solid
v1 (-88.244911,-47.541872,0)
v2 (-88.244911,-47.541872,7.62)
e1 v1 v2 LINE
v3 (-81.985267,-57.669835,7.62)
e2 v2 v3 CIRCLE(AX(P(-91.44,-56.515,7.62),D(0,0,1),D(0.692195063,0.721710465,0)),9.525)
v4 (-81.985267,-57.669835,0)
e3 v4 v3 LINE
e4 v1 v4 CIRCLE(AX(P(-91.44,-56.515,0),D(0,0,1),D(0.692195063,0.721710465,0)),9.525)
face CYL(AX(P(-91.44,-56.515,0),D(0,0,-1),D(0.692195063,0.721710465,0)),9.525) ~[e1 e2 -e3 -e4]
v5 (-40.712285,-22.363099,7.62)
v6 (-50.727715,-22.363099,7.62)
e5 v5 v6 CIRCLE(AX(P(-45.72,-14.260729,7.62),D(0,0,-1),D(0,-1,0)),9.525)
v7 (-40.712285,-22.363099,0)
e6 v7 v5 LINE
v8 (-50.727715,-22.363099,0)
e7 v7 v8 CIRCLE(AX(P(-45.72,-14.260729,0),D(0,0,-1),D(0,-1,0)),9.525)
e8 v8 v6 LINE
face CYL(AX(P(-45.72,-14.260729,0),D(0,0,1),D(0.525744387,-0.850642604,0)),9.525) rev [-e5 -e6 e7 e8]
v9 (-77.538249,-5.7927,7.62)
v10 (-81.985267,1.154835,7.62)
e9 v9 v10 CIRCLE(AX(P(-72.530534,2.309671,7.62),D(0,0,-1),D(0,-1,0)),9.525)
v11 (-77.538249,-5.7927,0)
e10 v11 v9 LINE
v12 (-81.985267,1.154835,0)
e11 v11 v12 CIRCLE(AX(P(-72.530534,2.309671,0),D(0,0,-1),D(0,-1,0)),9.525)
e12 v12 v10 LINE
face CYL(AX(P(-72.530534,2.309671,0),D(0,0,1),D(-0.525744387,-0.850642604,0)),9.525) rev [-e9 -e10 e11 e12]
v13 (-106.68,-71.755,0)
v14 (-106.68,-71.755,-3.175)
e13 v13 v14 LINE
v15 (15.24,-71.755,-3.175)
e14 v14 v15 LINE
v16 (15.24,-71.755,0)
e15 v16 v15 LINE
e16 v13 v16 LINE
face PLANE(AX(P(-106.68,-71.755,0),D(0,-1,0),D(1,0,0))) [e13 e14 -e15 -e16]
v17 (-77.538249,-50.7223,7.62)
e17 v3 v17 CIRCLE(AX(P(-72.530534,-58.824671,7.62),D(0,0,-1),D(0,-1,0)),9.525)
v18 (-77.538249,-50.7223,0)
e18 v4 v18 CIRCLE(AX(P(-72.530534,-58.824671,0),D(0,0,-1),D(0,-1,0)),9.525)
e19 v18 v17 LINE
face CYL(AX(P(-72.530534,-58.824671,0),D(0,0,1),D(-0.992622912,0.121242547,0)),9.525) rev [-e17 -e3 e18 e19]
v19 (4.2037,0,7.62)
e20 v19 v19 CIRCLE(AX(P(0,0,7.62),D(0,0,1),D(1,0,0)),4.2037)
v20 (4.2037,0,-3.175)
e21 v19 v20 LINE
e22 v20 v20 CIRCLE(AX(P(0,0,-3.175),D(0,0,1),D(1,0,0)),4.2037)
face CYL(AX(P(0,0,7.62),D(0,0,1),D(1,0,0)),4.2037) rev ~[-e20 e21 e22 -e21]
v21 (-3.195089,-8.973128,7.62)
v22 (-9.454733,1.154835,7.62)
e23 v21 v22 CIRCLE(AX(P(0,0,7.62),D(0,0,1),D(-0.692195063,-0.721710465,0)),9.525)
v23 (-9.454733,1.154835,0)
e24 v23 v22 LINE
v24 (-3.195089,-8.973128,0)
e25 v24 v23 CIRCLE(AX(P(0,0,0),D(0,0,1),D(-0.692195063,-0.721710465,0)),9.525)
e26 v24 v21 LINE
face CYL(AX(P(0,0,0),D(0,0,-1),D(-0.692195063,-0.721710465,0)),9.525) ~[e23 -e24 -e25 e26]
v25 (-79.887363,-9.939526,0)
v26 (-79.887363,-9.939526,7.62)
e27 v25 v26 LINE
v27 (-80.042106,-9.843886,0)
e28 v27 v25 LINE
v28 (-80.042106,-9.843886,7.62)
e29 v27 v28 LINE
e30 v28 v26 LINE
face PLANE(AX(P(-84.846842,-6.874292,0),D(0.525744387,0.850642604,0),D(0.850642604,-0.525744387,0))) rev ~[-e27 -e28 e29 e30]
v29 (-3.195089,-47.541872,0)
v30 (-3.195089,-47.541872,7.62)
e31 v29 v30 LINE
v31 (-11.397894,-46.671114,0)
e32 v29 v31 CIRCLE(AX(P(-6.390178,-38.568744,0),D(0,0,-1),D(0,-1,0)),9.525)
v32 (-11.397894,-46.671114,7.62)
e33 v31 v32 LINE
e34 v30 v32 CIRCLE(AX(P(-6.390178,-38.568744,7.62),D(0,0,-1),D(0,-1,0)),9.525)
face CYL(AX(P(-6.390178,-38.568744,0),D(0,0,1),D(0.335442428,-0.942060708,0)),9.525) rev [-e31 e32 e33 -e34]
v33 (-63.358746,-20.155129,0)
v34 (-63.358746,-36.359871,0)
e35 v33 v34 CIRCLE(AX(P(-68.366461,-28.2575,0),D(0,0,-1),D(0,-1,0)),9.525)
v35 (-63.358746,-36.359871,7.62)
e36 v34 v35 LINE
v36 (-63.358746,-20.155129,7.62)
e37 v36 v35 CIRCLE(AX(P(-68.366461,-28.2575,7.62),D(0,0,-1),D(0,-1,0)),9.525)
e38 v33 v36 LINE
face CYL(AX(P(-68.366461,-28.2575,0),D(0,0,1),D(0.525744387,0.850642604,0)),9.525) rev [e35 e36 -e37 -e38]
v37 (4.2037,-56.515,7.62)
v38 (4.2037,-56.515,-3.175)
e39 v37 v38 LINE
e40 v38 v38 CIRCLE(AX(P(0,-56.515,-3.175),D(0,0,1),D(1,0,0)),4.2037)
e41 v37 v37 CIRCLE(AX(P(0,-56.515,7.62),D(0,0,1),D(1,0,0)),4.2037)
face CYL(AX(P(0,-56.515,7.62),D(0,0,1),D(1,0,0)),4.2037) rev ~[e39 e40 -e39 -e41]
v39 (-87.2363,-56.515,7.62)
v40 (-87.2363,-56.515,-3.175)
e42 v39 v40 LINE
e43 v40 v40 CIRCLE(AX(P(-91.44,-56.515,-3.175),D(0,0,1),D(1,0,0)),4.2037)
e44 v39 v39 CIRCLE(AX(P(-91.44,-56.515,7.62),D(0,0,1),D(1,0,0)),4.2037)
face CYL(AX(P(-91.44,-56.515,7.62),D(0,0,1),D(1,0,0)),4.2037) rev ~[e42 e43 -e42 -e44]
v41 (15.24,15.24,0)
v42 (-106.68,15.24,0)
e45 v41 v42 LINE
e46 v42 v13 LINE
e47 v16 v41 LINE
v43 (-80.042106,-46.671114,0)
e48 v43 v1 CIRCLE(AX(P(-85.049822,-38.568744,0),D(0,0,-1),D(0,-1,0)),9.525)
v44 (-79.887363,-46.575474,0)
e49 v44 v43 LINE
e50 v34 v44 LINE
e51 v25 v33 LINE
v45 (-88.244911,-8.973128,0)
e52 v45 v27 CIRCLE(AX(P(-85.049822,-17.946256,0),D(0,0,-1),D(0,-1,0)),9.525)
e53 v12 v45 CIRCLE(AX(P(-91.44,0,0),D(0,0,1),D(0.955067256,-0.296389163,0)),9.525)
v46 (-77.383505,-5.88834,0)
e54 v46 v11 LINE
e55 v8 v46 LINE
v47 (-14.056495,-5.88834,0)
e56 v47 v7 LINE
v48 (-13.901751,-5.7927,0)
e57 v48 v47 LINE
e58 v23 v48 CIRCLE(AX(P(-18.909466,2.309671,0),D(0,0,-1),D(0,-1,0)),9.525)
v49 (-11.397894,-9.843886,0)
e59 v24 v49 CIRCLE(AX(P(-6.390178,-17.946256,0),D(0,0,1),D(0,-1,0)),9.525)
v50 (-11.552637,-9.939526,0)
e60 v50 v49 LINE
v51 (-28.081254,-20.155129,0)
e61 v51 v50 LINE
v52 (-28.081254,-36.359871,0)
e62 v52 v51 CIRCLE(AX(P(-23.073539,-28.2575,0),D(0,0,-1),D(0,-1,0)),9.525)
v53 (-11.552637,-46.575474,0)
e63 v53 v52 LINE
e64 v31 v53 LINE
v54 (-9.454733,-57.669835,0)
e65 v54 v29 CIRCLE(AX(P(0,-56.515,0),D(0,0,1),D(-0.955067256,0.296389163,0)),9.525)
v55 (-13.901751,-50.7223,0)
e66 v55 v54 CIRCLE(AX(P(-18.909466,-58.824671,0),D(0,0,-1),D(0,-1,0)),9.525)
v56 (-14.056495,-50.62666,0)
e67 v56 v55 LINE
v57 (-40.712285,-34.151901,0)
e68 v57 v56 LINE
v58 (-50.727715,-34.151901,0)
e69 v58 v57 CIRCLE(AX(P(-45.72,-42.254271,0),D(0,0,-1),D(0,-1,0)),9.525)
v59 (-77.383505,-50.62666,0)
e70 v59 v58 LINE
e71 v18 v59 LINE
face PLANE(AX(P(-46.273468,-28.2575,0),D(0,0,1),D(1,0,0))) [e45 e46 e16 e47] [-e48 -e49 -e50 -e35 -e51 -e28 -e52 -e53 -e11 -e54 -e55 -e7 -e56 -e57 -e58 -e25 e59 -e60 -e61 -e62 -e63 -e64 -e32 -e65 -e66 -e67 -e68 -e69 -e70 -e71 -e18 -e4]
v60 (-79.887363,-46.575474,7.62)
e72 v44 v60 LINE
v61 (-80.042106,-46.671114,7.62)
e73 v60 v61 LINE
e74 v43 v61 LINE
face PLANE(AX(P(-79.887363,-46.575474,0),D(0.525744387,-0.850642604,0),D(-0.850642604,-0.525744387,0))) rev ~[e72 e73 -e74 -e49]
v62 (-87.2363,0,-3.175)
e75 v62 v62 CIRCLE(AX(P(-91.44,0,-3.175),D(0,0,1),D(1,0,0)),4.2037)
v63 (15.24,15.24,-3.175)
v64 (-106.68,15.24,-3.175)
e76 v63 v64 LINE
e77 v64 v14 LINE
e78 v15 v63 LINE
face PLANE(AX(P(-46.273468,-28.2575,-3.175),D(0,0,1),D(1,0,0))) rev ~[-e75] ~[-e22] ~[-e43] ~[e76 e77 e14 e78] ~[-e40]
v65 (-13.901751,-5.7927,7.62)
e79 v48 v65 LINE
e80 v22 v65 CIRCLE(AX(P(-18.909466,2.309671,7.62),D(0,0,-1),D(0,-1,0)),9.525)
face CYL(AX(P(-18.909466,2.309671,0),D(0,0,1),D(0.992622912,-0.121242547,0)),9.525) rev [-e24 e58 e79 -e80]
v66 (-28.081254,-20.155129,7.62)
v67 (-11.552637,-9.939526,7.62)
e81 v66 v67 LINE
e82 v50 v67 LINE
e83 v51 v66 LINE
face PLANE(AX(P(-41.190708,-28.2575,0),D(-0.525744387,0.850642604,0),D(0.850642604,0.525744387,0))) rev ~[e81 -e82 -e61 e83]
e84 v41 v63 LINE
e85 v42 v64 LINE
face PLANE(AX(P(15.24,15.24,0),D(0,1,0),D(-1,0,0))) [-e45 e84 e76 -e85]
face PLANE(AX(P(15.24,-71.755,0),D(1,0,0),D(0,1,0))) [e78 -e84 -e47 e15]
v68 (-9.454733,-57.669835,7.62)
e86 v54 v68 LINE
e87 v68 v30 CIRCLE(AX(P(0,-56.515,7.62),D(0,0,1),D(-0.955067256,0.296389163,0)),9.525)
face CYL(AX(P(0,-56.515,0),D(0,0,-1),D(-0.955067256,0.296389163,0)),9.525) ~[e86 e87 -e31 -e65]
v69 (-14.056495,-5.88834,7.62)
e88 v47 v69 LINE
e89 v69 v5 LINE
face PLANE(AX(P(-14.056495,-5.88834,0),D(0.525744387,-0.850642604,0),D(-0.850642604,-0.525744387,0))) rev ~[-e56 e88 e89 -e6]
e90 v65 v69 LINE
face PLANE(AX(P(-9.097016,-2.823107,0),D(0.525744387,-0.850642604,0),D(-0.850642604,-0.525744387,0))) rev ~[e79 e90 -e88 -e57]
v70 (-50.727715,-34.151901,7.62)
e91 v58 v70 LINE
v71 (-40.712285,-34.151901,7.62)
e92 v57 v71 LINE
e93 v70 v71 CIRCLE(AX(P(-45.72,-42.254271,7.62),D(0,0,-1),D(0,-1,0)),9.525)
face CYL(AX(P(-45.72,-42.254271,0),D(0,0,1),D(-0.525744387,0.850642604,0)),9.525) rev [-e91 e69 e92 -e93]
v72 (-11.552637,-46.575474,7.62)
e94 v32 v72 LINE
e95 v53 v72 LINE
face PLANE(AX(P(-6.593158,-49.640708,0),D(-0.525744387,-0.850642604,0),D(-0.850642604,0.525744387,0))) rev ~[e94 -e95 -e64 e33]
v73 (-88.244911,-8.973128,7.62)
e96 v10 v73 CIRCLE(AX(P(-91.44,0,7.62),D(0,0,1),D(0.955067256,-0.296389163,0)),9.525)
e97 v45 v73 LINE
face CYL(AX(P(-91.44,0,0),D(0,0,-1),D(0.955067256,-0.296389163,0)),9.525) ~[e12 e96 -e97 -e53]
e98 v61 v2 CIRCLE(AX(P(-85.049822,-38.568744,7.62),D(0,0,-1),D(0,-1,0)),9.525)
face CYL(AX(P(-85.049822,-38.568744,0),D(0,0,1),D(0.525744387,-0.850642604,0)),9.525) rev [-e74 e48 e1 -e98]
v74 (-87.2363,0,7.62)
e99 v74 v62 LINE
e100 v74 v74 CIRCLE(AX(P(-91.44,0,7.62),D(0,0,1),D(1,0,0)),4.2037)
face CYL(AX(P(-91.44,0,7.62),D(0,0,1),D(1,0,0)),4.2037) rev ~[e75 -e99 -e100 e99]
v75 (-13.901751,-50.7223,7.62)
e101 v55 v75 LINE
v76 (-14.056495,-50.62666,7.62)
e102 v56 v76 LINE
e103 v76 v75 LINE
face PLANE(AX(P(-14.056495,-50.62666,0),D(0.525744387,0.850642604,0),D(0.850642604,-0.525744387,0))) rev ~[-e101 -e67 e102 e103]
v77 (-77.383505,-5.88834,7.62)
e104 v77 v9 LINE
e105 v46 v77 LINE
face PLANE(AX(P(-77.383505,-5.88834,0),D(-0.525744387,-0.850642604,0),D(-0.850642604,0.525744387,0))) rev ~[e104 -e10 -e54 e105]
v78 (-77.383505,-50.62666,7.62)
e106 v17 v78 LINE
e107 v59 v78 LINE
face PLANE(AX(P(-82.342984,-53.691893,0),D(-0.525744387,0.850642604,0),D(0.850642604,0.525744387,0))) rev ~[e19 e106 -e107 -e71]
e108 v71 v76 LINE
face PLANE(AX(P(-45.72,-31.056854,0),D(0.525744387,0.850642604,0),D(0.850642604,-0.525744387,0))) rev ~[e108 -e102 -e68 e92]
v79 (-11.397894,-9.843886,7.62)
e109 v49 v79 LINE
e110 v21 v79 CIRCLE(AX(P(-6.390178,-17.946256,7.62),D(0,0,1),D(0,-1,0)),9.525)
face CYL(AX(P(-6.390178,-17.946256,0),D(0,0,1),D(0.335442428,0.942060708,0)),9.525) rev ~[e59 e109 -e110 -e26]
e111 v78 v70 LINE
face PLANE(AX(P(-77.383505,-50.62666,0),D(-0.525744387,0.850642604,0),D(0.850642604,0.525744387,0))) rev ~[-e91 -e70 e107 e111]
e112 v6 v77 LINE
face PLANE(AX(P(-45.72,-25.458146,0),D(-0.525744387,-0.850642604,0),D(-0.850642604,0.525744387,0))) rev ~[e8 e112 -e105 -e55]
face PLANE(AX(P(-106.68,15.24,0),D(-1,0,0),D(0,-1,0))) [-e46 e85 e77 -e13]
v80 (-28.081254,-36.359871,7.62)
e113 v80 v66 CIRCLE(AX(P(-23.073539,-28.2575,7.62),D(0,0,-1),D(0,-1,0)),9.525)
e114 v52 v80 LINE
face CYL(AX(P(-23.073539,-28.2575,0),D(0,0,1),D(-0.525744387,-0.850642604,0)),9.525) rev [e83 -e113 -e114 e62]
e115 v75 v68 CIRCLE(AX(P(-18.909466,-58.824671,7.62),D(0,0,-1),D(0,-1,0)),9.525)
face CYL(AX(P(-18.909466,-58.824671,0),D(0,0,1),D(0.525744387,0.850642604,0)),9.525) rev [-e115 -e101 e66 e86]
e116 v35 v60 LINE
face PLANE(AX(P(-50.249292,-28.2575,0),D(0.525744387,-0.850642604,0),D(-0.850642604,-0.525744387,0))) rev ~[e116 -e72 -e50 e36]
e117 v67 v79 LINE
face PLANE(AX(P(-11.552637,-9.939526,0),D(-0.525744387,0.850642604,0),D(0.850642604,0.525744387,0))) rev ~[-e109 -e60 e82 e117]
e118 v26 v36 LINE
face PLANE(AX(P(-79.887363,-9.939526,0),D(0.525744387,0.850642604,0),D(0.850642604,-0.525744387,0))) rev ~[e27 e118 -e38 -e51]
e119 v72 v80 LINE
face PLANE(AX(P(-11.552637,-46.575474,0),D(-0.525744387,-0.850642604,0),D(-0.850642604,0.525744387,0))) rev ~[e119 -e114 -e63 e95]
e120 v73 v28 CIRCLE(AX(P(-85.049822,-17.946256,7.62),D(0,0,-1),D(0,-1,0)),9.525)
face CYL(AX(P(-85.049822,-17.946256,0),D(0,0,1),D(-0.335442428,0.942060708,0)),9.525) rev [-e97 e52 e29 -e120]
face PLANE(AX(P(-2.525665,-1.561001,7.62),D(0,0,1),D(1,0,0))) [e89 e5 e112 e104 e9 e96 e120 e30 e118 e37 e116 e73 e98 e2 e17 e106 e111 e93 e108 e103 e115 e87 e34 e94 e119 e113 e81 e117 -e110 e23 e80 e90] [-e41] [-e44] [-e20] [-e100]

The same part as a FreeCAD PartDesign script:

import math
import FreeCAD as App
import Part
import Sketcher
from FreeCAD import Vector
Q = App.Units.Quantity


def edges_at(feature, points):
    """Names of the edges that pass closest to the given points."""
    edges = feature.Shape.Edges
    near = lambda p: min(range(len(edges)), key=lambda i: edges[i].distToShape(Part.Vertex(*p))[0])
    return sorted({f"Edge{near(p) + 1}" for p in points})


def add_polygon(sketch, points):
    """Adds a closed chain of lines whose ends are joined by coincident constraints."""
    first, n = sketch.GeometryCount, len(points)
    for a, b in zip(points, points[1:] + points[:1]):
        sketch.addGeometry(Part.LineSegment(App.Vector(*a, 0), App.Vector(*b, 0)), False)
    for i in range(n):
        sketch.addConstraint(Sketcher.Constraint("Coincident", first + i, 2, first + (i + 1) % n, 1))

doc = App.newDocument("Part")
body = doc.addObject("PartDesign::Body", "Body")

# Sketch on XY plane
sketch1 = body.newObject("Sketcher::SketchObject", "Sketch")
sketch1.AttachmentSupport = (doc.getObject("XY_Plane"), [""])
sketch1.MapMode = "FlatFace"
add_polygon(sketch1, [(-106.68, 15.24), (-106.68, -71.755), (15.24, -71.755), (15.24, 15.24)])  # lines 0-3
sketch1.addConstraint([
    Sketcher.Constraint("Vertical", 0),
    Sketcher.Constraint("Horizontal", 1),
    Sketcher.Constraint("Vertical", 2),
    Sketcher.Constraint("Horizontal", 3),
    Sketcher.Constraint("DistanceX", 1, 1, 1, 2, Q("4.8 in")),
    Sketcher.Constraint("DistanceX", 0, 2, -1, 1, Q("4.2 in")),
    Sketcher.Constraint("DistanceY", -1, 1, 2, 2, Q("0.6 in")),
    Sketcher.Constraint("DistanceY", 0, 2, 0, 1, Q("3.425 in")),
])
pad1 = body.newObject("PartDesign::Pad", "Pad")
pad1.Profile = sketch1
pad1.Length = Q("0.125 in")
pad1.Reversed = True

# Sketch on XY plane
sketch2 = body.newObject("Sketcher::SketchObject", "Sketch001")
sketch2.AttachmentSupport = (doc.getObject("XY_Plane"), [""])
sketch2.MapMode = "FlatFace"
sketch2.addGeometry([
    Part.ArcOfCircle(Part.Circle(Vector(0, 0, 0), Vector(0, 0, 1), 9.525), math.radians(-133.804119), math.radians(197.240856)),  # 0
    Part.LineSegment(Vector(-9.097016, -2.823107, 0), Vector(-14.056495, -5.88834, 0)),  # 1
    Part.LineSegment(Vector(-14.056495, -5.88834, 0), Vector(-45.72, -25.458146, 0)),  # 2
    Part.LineSegment(Vector(-45.72, -25.458146, 0), Vector(-77.383505, -5.88834, 0)),  # 3
    Part.LineSegment(Vector(-77.383505, -5.88834, 0), Vector(-82.342984, -2.823107, 0)),  # 4
    Part.ArcOfCircle(Part.Circle(Vector(-91.44, 0, 0), Vector(0, 0, 1), 9.525), math.radians(-17.240856), math.radians(313.804119)),  # 5
    Part.LineSegment(Vector(-84.846842, -6.874292, 0), Vector(-79.887363, -9.939526, 0)),  # 6
    Part.LineSegment(Vector(-79.887363, -9.939526, 0), Vector(-50.249292, -28.2575, 0)),  # 7
    Part.LineSegment(Vector(-50.249292, -28.2575, 0), Vector(-79.887363, -46.575474, 0)),  # 8
    Part.LineSegment(Vector(-79.887363, -46.575474, 0), Vector(-84.846842, -49.640708, 0)),  # 9
    Part.ArcOfCircle(Part.Circle(Vector(-91.44, -56.515, 0), Vector(0, 0, 1), 9.525), math.radians(46.195881), math.radians(377.240856)),  # 10
    Part.LineSegment(Vector(-82.342984, -53.691893, 0), Vector(-77.383505, -50.62666, 0)),  # 11
    Part.LineSegment(Vector(-77.383505, -50.62666, 0), Vector(-45.72, -31.056854, 0)),  # 12
    Part.LineSegment(Vector(-45.72, -31.056854, 0), Vector(-14.056495, -50.62666, 0)),  # 13
    Part.LineSegment(Vector(-14.056495, -50.62666, 0), Vector(-9.097016, -53.691893, 0)),  # 14
    Part.ArcOfCircle(Part.Circle(Vector(0, -56.515, 0), Vector(0, 0, 1), 9.525), math.radians(162.759144), math.radians(493.804119)),  # 15
    Part.LineSegment(Vector(-6.593158, -49.640708, 0), Vector(-11.552637, -46.575474, 0)),  # 16
    Part.LineSegment(Vector(-11.552637, -46.575474, 0), Vector(-41.190708, -28.2575, 0)),  # 17
    Part.LineSegment(Vector(-41.190708, -28.2575, 0), Vector(-11.552637, -9.939526, 0)),  # 18
    Part.LineSegment(Vector(-11.552637, -9.939526, 0), Vector(-6.593158, -6.874292, 0)),  # 19
], False)
sketch2.addConstraint([
    Sketcher.Constraint("Coincident", 0, 2, 1, 1),
    Sketcher.Constraint("Coincident", 1, 2, 2, 1),
    Sketcher.Constraint("Coincident", 2, 2, 3, 1),
    Sketcher.Constraint("Coincident", 3, 2, 4, 1),
    Sketcher.Constraint("Coincident", 4, 2, 5, 1),
    Sketcher.Constraint("Coincident", 5, 2, 6, 1),
    Sketcher.Constraint("Coincident", 6, 2, 7, 1),
    Sketcher.Constraint("Coincident", 7, 2, 8, 1),
    Sketcher.Constraint("Coincident", 8, 2, 9, 1),
    Sketcher.Constraint("Coincident", 9, 2, 10, 1),
    Sketcher.Constraint("Coincident", 10, 2, 11, 1),
    Sketcher.Constraint("Coincident", 11, 2, 12, 1),
    Sketcher.Constraint("Coincident", 12, 2, 13, 1),
    Sketcher.Constraint("Coincident", 13, 2, 14, 1),
    Sketcher.Constraint("Coincident", 14, 2, 15, 1),
    Sketcher.Constraint("Coincident", 15, 2, 16, 1),
    Sketcher.Constraint("Coincident", 16, 2, 17, 1),
    Sketcher.Constraint("Coincident", 17, 2, 18, 1),
    Sketcher.Constraint("Coincident", 18, 2, 19, 1),
    Sketcher.Constraint("Coincident", 19, 2, 0, 1),
    Sketcher.Constraint("Coincident", 0, 3, -1, 1),
    Sketcher.Constraint("Equal", 0, 5),
    Sketcher.Constraint("Equal", 5, 10),
    Sketcher.Constraint("Equal", 10, 15),
    Sketcher.Constraint("PointOnObject", 5, 3, -1),
    Sketcher.Constraint("PointOnObject", 15, 3, -2),
    Sketcher.Constraint("Parallel", 1, 2),
    Sketcher.Constraint("Parallel", 3, 4),
    Sketcher.Constraint("Parallel", 4, 6),
    Sketcher.Constraint("Parallel", 6, 7),
    Sketcher.Constraint("Parallel", 2, 8),
    Sketcher.Constraint("Parallel", 8, 9),
    Sketcher.Constraint("Parallel", 9, 11),
    Sketcher.Constraint("Parallel", 11, 12),
    Sketcher.Constraint("Parallel", 7, 13),
    Sketcher.Constraint("Parallel", 13, 14),
    Sketcher.Constraint("Parallel", 14, 16),
    Sketcher.Constraint("Parallel", 16, 17),
    Sketcher.Constraint("Parallel", 12, 18),
    Sketcher.Constraint("Parallel", 18, 19),
    Sketcher.Constraint("Horizontal", 10, 3, 15, 3),
    Sketcher.Constraint("Horizontal", 1, 2, 3, 2),
    Sketcher.Constraint("Horizontal", 0, 2, 4, 2),
    Sketcher.Constraint("Horizontal", 11, 2, 13, 2),
    Sketcher.Constraint("Horizontal", 10, 2, 14, 2),
    Sketcher.Constraint("Horizontal", 9, 2, 15, 2),
    Sketcher.Constraint("Horizontal", 8, 2, 16, 2),
    Sketcher.Constraint("Horizontal", 7, 2, 17, 2),
    Sketcher.Constraint("Horizontal", 6, 2, 18, 2),
    Sketcher.Constraint("Horizontal", 5, 2, 19, 2),
    Sketcher.Constraint("Vertical", 5, 3, 10, 3),
    Sketcher.Constraint("Vertical", 6, 2, 8, 2),
    Sketcher.Constraint("Vertical", 5, 2, 9, 2),
    Sketcher.Constraint("Vertical", 4, 2, 10, 2),
    Sketcher.Constraint("Vertical", 3, 2, 11, 2),
    Sketcher.Constraint("Equal", 4, 6),
    Sketcher.Constraint("Radius", 0, Q("0.375 in")),
    Sketcher.Constraint("DistanceX", 5, 3, -1, 1, Q("3.6 in")),
    Sketcher.Constraint("DistanceY", 10, 3, -1, 1, Q("2.225 in")),
    Sketcher.Constraint("Distance", 2, 37.223042),
    Sketcher.Constraint("DistanceY", 1, 2, -1, 1, 5.88834),
    Sketcher.Constraint("DistanceX", 1, 2, 0, 2, 4.959479),
    Sketcher.Constraint("DistanceY", 5, 2, 3, 2, 0.985952),
])
pad2 = body.newObject("PartDesign::Pad", "Pad001")
pad2.Profile = sketch2
pad2.Length = Q("0.3 in")
doc.recompute()

fillet = body.newObject("PartDesign::Fillet", "Fillet")
fillet.Base = (pad2, edges_at(pad2, [
    (-45.72, -31.057, 3.81),
    (-82.343, -53.692, 3.81),
    (-9.097, -53.692, 3.81),
    (-6.593, -6.874, 3.81),
    (-84.847, -49.641, 3.81),
    (-50.249, -28.258, 3.81),
    (-84.847, -6.874, 3.81),
    (-82.343, -2.823, 3.81),
    (-45.72, -25.458, 3.81),
    (-9.097, -2.823, 3.81),
    (-41.191, -28.258, 3.81),
    (-6.593, -49.641, 3.81),
]))
fillet.Radius = Q("0.375 in")

# Sketch on XY plane
sketch3 = body.newObject("Sketcher::SketchObject", "Sketch002")
sketch3.AttachmentSupport = (doc.getObject("XY_Plane"), [""])
sketch3.MapMode = "FlatFace"
sketch3.AttachmentOffset = App.Placement(Vector(0, 0, 0.3 * 25.4), App.Rotation())
sketch3.addGeometry([
    Part.Circle(Vector(0, -56.515, 0), Vector(0, 0, 1), 4.2037),
    Part.Circle(Vector(-91.44, -56.515, 0), Vector(0, 0, 1), 4.2037),
    Part.Circle(Vector(-91.44, 0, 0), Vector(0, 0, 1), 4.2037),
    Part.Circle(Vector(0, 0, 0), Vector(0, 0, 1), 4.2037),
], False)
sketch3.addConstraint([
    Sketcher.Constraint("Coincident", 3, 3, -1, 1),
    Sketcher.Constraint("Equal", 0, 1),
    Sketcher.Constraint("Equal", 1, 2),
    Sketcher.Constraint("Equal", 2, 3),
    Sketcher.Constraint("PointOnObject", 0, 3, -2),
    Sketcher.Constraint("PointOnObject", 2, 3, -1),
    Sketcher.Constraint("Horizontal", 0, 3, 1, 3),
    Sketcher.Constraint("Vertical", 1, 3, 2, 3),
    Sketcher.Constraint("Diameter", 0, Q("0.331 in")),
    Sketcher.Constraint("DistanceX", 1, 3, -1, 1, Q("3.6 in")),
    Sketcher.Constraint("DistanceY", 0, 3, -1, 1, Q("2.225 in")),
])
pocket1 = body.newObject("PartDesign::Pocket", "Pocket")
pocket1.Profile = sketch3
pocket1.Type = "ThroughAll"

doc.recompute()
